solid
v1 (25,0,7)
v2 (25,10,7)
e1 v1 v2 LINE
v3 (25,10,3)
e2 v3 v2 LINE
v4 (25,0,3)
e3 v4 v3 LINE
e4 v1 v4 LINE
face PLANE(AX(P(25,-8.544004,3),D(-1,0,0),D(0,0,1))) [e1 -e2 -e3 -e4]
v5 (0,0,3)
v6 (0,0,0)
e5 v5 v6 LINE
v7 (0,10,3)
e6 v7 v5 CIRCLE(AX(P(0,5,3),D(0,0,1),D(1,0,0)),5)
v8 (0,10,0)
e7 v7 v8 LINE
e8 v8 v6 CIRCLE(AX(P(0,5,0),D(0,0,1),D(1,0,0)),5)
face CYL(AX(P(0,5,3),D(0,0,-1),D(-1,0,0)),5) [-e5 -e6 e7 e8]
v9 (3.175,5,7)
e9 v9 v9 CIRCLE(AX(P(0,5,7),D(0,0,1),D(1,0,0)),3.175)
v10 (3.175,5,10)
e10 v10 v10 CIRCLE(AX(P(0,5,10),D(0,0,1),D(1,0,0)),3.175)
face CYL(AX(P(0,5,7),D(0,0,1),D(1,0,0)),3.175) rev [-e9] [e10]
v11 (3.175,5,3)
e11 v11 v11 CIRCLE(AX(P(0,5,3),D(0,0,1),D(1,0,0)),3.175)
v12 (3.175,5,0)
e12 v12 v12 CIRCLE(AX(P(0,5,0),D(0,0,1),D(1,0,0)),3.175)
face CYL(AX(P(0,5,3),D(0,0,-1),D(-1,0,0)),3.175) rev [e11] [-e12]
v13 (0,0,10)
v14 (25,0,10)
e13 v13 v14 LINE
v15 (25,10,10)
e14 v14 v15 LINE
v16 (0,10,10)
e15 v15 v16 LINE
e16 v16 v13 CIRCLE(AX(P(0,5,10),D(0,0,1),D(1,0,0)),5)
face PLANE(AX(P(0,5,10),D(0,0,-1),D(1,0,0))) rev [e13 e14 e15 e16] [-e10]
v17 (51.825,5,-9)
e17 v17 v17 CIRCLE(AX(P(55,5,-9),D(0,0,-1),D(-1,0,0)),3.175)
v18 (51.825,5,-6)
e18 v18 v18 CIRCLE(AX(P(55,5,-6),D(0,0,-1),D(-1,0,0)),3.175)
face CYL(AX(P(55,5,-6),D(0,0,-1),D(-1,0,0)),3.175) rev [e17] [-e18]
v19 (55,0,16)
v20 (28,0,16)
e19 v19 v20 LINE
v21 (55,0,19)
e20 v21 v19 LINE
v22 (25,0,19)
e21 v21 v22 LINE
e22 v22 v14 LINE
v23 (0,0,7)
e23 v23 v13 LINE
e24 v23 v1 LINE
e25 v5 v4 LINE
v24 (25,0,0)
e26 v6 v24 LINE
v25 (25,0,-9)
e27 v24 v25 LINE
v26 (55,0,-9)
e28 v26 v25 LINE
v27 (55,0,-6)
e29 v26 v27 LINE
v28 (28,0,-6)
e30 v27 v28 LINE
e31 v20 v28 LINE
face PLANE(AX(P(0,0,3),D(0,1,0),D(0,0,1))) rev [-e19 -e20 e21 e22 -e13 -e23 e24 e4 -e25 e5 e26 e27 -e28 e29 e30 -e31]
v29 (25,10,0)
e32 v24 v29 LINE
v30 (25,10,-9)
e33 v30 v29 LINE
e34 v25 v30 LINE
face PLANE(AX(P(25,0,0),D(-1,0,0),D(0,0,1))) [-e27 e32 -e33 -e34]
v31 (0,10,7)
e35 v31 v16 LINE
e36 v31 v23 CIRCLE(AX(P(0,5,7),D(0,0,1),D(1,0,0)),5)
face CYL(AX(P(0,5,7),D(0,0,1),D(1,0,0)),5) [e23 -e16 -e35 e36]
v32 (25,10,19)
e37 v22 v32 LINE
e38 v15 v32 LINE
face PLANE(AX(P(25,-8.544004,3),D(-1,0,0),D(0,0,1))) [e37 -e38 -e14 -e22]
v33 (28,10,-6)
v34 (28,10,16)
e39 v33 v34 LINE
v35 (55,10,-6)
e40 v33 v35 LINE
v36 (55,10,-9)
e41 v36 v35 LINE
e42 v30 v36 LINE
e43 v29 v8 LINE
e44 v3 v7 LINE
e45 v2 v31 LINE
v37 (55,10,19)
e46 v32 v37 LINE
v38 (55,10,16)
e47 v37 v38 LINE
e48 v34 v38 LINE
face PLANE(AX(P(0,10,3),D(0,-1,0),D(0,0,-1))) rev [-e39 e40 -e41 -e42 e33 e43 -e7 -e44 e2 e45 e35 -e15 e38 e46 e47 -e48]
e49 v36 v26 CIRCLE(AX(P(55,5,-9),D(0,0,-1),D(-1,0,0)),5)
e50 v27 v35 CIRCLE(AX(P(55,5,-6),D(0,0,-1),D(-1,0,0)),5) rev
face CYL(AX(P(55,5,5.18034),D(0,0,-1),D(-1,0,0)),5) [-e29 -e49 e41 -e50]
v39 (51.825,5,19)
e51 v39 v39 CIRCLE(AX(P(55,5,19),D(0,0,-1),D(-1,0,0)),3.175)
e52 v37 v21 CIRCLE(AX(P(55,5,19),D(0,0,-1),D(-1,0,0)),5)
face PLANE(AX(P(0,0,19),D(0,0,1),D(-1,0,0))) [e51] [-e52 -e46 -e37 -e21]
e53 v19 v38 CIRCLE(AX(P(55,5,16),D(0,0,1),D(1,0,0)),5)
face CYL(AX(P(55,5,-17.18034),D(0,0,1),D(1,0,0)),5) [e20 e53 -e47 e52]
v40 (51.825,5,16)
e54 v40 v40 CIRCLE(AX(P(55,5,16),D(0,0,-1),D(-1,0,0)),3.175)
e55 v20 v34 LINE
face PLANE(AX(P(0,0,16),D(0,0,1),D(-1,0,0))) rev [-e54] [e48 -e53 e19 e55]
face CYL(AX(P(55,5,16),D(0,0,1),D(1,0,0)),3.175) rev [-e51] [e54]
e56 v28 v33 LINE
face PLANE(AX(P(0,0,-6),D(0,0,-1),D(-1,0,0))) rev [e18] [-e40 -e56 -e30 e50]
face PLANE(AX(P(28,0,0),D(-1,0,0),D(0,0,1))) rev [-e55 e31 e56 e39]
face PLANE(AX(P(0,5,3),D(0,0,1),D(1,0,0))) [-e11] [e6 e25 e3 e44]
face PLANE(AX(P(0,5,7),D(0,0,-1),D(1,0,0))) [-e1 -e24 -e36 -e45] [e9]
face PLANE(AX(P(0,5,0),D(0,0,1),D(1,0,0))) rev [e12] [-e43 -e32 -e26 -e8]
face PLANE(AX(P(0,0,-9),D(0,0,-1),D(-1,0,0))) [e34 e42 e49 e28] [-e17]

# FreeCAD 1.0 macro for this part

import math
import FreeCAD as App
import Part
import Sketcher
from FreeCAD import Vector


def add_polygon(sketch, points):
    """Adds a closed chain of lines whose ends are joined by coincident constraints."""
    first, n = sketch.GeometryCount, len(points)
    for a, b in zip(points, points[1:] + points[:1]):
        sketch.addGeometry(Part.LineSegment(App.Vector(*a, 0), App.Vector(*b, 0)), False)
    for i in range(n):
        sketch.addConstraint(Sketcher.Constraint("Coincident", first + i, 2, first + (i + 1) % n, 1))

doc = App.newDocument("Part")
body = doc.addObject("PartDesign::Body", "Body")

sketch1 = body.newObject("Sketcher::SketchObject", "Sketch")
sketch1.AttachmentSupport = (doc.getObject("XY_Plane"), [""])
sketch1.MapMode = "FlatFace"
sketch1.addGeometry([
    Part.LineSegment(Vector(0, 0, 0), Vector(25, 0, 0)),
    Part.LineSegment(Vector(25, 0, 0), Vector(25, 10, 0)),
    Part.LineSegment(Vector(25, 10, 0), Vector(0, 10, 0)),
    Part.ArcOfCircle(Part.Circle(Vector(0, 5, 0), Vector(0, 0, 1), 5), math.radians(90), math.radians(270)),
    Part.Circle(Vector(0, 5, 0), Vector(0, 0, 1), 3.2),
], False)
sketch1.addConstraint([
    Sketcher.Constraint("Coincident", 0, 2, 1, 1),
    Sketcher.Constraint("Coincident", 1, 2, 2, 1),
    Sketcher.Constraint("Tangent", 2, 2, 3, 1),
    Sketcher.Constraint("Tangent", 3, 2, 0, 1),
    Sketcher.Constraint("Horizontal", 0),
    Sketcher.Constraint("Vertical", 1),
    Sketcher.Constraint("Horizontal", 2),
    Sketcher.Constraint("Coincident", 3, 2, -1, 1),
    Sketcher.Constraint("Coincident", 4, 3, 3, 3),
    Sketcher.Constraint("Radius", 3, 5.0),
    Sketcher.Constraint("Diameter", 4, 6.35),
    Sketcher.Constraint("DistanceX", 0, 1, 0, 2, 25.0),
])
pad1 = body.newObject("PartDesign::Pad", "Pad")
pad1.Profile = sketch1
pad1.Length = 3

sketch2 = body.newObject("Sketcher::SketchObject", "Sketch001")
sketch2.AttachmentSupport = (doc.getObject("YZ_Plane"), [""])
sketch2.MapMode = "FlatFace"
sketch2.AttachmentOffset = App.Placement(Vector(0, 0, 25), App.Rotation())
add_polygon(sketch2, [(10, 3), (0, 3), (0, -6), (10, -6)])
sketch2.addConstraint([
    Sketcher.Constraint("Horizontal", 0),
    Sketcher.Constraint("Vertical", 1),
    Sketcher.Constraint("Horizontal", 2),
    Sketcher.Constraint("Vertical", 3),
    Sketcher.Constraint("PointOnObject", 0, 2, -2),
    Sketcher.Constraint("DistanceX", 0, 2, 0, 1, 10.0),
    Sketcher.Constraint("DistanceY", 1, 2, 1, 1, 9.0),
    Sketcher.Constraint("DistanceY", -1, 1, 0, 2, 3.0),
])
pad2 = body.newObject("PartDesign::Pad", "Pad001")
pad2.Profile = sketch2
pad2.Length = 3

sketch3 = body.newObject("Sketcher::SketchObject", "Sketch002")
sketch3.AttachmentSupport = (doc.getObject("XY_Plane"), [""])
sketch3.MapMode = "FlatFace"
sketch3.AttachmentOffset = App.Placement(Vector(0, 0, -6), App.Rotation())
add_polygon(sketch3, [(55, 10), (55, 0), (25, 0), (25, 10)])
sketch3.addConstraint([
    Sketcher.Constraint("Vertical", 0),
    Sketcher.Constraint("Horizontal", 1),
    Sketcher.Constraint("Vertical", 2),
    Sketcher.Constraint("Horizontal", 3),
    Sketcher.Constraint("PointOnObject", 0, 2, -1),
    Sketcher.Constraint("DistanceX", 1, 2, 1, 1, 30.0),
    Sketcher.Constraint("DistanceY", 0, 2, 0, 1, 10.0),
    Sketcher.Constraint("DistanceX", -1, 1, 0, 2, 55.0),
])
pad3 = body.newObject("PartDesign::Pad", "Pad002")
pad3.Profile = sketch3
pad3.Length = 3
pad3.Reversed = True

sketch4 = body.newObject("Sketcher::SketchObject", "Sketch003")
sketch4.AttachmentSupport = (doc.getObject("XY_Plane"), [""])
sketch4.MapMode = "FlatFace"
sketch4.AttachmentOffset = App.Placement(Vector(0, 0, -9), App.Rotation())
sketch4.addGeometry([
    Part.LineSegment(Vector(55, 0, 0), Vector(55, 10, 0)),
    Part.ArcOfCircle(Part.Circle(Vector(55, 5, 0), Vector(0, 0, 1), 5), math.radians(-90), math.radians(90)),
], False)
sketch4.addConstraint([
    Sketcher.Constraint("Coincident", 0, 1, 1, 1),
    Sketcher.Constraint("Coincident", 1, 2, 0, 2),
    Sketcher.Constraint("Vertical", 0),
    Sketcher.Constraint("PointOnObject", 0, 1, -1),
    Sketcher.Constraint("Vertical", 1, 3, 0, 1),
    Sketcher.Constraint("Radius", 1, 5.0),
    Sketcher.Constraint("DistanceX", -1, 1, 1, 3, 55.0),
])
pad4 = body.newObject("PartDesign::Pad", "Pad003")
pad4.Profile = sketch4
pad4.Length = 3

sketch5 = body.newObject("Sketcher::SketchObject", "Sketch004")
sketch5.AttachmentSupport = (doc.getObject("XY_Plane"), [""])
sketch5.MapMode = "FlatFace"
sketch5.AttachmentOffset = App.Placement(Vector(0, 0, -9), App.Rotation())
sketch5.addGeometry(Part.Circle(Vector(55, 5, 0), Vector(0, 0, 1), 3.2), False)
sketch5.addConstraint([
    Sketcher.Constraint("Diameter", 0, 6.35),
    Sketcher.Constraint("DistanceX", -1, 1, 0, 3, 55.0),
    Sketcher.Constraint("DistanceY", -1, 1, 0, 3, 5.0),
])
pocket1 = body.newObject("PartDesign::Pocket", "Pocket")
pocket1.Profile = sketch5
pocket1.Length = 3
pocket1.Reversed = True

sketch6 = body.newObject("Sketcher::SketchObject", "Sketch005")
sketch6.AttachmentSupport = (doc.getObject("XZ_Plane"), [""])
sketch6.MapMode = "FlatFace"
sketch6.AttachmentOffset = App.Placement(Vector(0, 0, -10), App.Rotation())
add_polygon(sketch6, [(25, 3), (25, 11), (28, 11), (28, 3)])
sketch6.addConstraint([
    Sketcher.Constraint("Vertical", 0),
    Sketcher.Constraint("Horizontal", 1),
    Sketcher.Constraint("Vertical", 2),
    Sketcher.Constraint("Horizontal", 3),
    Sketcher.Constraint("DistanceX", 1, 1, 1, 2, 3.0),
    Sketcher.Constraint("DistanceY", 0, 1, 0, 2, 8.0),
    Sketcher.Constraint("DistanceX", -1, 1, 0, 2, 25.0),
    Sketcher.Constraint("DistanceY", -1, 1, 0, 2, 11.0),
])
pad5 = body.newObject("PartDesign::Pad", "Pad004")
pad5.Profile = sketch6
pad5.Length = 10
doc.recompute()

datumplane = body.newObject("PartDesign::Plane", "DatumPlane")
datumplane.AttachmentSupport = (doc.getObject("XY_Plane"), [""])
datumplane.MapMode = "FlatFace"
datumplane.AttachmentOffset = App.Placement(Vector(0, 0, 5), App.Rotation())
mirrored = body.newObject("PartDesign::Mirrored", "Mirrored")
mirrored.Originals = [pad1, pad2, pad3, pad4, pocket1, pad5]
mirrored.MirrorPlane = (datumplane, [""])
body.Tip = mirrored

doc.recompute()
